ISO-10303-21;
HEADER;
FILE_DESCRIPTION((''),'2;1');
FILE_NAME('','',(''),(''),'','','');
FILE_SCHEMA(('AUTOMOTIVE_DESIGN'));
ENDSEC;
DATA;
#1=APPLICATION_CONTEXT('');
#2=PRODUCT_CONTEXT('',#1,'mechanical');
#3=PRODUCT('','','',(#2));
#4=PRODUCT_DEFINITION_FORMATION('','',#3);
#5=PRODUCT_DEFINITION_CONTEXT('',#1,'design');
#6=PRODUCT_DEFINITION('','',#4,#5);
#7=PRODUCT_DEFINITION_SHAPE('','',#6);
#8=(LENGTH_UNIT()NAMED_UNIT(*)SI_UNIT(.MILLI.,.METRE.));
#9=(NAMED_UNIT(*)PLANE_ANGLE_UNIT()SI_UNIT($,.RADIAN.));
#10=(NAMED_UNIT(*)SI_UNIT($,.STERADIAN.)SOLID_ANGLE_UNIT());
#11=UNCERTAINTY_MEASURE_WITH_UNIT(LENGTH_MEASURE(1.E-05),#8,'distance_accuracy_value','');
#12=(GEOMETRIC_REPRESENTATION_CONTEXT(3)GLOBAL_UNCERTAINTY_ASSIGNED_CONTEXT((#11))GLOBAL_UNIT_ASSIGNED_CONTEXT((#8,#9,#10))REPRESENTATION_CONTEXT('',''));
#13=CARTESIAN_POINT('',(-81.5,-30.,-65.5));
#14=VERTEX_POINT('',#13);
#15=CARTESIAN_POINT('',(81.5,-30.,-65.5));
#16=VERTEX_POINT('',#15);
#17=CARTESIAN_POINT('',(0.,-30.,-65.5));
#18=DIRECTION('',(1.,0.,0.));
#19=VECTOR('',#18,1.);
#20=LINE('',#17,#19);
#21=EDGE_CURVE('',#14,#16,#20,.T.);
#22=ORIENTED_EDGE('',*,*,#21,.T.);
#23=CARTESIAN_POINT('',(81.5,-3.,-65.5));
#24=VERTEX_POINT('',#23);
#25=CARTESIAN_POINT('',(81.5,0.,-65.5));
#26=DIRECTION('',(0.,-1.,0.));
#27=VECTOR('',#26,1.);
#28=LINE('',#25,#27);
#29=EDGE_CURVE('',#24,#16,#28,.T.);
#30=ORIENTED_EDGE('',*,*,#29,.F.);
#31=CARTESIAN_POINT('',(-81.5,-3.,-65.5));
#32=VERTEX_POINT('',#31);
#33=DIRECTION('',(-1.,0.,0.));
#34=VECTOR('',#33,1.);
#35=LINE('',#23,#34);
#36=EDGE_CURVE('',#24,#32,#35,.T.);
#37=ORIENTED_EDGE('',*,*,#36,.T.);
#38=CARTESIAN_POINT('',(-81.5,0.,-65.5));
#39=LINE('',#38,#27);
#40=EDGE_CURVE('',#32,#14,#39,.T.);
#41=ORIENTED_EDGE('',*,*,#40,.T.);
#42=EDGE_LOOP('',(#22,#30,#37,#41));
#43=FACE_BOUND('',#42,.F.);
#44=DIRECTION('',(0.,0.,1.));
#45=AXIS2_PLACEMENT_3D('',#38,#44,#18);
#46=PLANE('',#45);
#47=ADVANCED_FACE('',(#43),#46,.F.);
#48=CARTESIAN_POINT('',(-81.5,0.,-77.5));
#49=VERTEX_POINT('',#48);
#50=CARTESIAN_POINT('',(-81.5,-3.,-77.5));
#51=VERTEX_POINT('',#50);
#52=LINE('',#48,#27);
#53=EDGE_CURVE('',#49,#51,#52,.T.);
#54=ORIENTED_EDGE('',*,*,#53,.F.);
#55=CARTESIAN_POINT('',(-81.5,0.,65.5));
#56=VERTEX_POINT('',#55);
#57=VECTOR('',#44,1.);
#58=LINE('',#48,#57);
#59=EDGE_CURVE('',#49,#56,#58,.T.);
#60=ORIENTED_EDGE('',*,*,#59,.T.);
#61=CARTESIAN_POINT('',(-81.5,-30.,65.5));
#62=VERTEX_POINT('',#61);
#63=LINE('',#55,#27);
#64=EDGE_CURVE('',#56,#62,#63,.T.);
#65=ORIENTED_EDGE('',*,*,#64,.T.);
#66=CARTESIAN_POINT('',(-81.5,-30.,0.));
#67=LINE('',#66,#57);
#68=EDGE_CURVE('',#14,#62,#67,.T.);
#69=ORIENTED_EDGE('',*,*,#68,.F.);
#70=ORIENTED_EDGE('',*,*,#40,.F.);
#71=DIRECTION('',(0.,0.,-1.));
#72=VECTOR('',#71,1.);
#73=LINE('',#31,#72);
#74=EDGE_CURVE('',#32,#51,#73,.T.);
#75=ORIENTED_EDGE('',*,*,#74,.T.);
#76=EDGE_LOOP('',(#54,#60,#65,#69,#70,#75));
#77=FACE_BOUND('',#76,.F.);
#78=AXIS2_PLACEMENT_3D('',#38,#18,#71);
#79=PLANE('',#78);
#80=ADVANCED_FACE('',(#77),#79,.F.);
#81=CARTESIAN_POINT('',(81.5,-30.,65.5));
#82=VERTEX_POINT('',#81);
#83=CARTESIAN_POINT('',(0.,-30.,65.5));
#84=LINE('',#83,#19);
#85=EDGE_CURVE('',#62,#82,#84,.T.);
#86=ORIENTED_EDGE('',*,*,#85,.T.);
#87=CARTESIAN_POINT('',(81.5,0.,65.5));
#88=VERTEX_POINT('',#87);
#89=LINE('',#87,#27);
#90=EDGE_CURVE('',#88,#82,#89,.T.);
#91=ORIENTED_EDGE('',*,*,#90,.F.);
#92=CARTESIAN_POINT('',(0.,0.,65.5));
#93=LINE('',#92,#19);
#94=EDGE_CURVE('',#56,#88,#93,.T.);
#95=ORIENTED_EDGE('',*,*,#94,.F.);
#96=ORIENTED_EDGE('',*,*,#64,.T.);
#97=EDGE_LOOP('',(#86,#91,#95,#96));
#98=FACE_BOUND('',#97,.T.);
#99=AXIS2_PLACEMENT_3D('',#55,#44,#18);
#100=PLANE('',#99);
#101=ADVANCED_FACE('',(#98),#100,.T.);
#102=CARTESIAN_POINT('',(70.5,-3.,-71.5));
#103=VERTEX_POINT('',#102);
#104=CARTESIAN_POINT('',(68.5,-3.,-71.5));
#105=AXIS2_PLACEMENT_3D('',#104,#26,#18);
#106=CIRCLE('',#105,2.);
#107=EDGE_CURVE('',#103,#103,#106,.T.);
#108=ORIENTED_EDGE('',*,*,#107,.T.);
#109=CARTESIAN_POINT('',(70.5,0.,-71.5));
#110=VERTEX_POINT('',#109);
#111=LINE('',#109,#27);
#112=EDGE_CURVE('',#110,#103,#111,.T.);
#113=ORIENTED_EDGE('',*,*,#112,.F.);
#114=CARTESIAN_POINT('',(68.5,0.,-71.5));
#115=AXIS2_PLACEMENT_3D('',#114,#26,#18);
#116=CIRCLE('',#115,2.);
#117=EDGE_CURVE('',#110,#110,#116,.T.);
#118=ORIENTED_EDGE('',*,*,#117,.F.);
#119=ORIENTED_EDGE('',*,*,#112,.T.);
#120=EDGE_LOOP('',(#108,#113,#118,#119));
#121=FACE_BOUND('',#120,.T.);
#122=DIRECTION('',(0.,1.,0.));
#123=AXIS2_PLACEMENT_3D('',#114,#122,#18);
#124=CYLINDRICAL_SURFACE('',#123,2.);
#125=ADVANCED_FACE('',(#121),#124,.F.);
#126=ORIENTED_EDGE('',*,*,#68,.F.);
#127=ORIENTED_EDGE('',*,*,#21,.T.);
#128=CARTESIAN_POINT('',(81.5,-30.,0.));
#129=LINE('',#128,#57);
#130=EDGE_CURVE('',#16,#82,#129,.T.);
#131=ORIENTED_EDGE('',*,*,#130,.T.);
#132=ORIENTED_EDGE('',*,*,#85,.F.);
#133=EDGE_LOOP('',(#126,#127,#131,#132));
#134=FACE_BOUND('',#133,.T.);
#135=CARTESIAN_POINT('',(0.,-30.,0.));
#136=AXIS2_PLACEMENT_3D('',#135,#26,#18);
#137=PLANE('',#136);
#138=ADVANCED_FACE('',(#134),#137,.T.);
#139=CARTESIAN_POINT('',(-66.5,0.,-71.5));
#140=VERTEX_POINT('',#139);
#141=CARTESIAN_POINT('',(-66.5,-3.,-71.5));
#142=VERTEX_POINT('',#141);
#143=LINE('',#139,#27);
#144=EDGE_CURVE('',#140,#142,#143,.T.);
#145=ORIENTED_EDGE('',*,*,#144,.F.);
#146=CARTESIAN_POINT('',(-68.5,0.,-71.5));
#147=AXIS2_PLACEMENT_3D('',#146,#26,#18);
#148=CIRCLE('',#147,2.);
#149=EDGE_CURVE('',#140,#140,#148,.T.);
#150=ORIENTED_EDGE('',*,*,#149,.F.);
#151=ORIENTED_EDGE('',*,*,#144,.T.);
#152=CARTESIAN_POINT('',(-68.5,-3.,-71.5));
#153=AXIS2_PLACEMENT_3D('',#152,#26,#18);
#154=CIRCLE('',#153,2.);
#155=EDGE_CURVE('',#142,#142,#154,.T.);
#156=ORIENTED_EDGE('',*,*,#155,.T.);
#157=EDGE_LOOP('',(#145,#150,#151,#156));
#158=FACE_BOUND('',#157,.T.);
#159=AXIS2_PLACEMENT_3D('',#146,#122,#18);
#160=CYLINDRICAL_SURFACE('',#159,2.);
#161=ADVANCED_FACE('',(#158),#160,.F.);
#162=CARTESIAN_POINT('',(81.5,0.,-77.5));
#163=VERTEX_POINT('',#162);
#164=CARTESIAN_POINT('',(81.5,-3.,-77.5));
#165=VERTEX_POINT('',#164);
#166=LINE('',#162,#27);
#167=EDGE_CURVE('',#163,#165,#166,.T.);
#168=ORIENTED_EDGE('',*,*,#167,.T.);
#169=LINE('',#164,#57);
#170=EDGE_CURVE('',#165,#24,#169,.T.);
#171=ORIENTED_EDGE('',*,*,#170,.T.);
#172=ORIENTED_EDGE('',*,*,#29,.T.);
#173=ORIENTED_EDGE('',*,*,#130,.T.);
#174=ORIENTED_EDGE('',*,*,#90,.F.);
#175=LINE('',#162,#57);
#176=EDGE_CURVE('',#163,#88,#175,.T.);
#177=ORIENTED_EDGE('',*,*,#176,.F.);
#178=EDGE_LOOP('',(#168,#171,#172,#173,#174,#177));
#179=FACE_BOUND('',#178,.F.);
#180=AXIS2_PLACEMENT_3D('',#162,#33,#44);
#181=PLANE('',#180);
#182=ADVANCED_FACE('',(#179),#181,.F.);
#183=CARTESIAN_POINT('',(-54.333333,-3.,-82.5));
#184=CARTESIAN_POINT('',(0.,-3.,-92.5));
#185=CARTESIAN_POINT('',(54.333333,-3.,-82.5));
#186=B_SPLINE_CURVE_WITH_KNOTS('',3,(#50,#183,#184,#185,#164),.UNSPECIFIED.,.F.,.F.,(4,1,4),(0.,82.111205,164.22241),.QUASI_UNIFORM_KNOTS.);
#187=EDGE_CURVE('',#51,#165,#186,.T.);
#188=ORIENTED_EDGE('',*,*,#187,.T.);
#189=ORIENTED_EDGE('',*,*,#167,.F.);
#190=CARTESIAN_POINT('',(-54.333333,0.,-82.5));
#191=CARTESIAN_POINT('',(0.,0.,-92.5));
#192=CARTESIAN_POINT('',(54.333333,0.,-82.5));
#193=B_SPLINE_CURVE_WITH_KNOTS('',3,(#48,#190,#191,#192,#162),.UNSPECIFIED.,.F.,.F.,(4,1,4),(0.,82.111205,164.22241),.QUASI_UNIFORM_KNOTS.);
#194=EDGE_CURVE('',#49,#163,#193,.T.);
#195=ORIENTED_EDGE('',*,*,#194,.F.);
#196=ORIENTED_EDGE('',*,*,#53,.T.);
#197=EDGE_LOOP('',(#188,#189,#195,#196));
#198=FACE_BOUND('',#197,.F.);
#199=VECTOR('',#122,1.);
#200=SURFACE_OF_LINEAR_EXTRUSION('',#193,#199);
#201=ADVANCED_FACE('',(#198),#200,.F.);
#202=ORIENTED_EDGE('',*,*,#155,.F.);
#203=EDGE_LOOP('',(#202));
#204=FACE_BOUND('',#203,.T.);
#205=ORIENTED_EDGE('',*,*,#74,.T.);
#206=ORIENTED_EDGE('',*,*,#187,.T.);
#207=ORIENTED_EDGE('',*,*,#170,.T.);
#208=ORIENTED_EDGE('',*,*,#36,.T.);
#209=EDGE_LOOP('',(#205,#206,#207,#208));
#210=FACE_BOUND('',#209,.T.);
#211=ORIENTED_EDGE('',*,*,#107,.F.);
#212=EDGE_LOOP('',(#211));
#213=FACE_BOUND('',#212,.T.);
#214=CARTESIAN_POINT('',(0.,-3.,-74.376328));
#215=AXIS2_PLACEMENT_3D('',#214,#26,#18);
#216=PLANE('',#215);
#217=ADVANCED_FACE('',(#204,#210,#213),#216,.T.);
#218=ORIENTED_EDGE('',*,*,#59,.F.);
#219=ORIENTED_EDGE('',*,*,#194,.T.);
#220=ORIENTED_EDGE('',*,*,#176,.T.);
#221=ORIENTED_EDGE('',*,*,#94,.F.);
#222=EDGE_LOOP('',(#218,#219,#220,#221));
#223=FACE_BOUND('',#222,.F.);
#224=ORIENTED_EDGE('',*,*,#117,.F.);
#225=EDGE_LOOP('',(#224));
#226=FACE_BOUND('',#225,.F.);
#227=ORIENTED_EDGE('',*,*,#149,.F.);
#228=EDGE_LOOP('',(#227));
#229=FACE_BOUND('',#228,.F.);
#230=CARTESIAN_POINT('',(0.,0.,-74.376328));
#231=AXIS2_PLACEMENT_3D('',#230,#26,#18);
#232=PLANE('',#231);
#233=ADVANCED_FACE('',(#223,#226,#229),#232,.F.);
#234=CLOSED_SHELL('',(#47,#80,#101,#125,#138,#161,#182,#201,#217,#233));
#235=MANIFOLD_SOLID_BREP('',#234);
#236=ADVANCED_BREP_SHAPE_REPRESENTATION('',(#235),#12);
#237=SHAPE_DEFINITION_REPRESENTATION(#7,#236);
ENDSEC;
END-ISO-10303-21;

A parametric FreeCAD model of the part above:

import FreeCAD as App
import Part
import Sketcher

V = App.Vector
Q = App.Units.Quantity


def add_polygon(sketch, points):
    """Adds a closed chain of lines whose ends are joined by coincident constraints."""
    first, n = sketch.GeometryCount, len(points)
    for a, b in zip(points, points[1:] + points[:1]):
        sketch.addGeometry(Part.LineSegment(App.Vector(*a, 0), App.Vector(*b, 0)), False)
    for i in range(n):
        sketch.addConstraint(Sketcher.Constraint("Coincident", first + i, 2, first + (i + 1) % n, 1))

doc = App.newDocument("Part")
params = doc.addObject("Spreadsheet::Sheet", "Params")
for row, (alias, value) in enumerate([
    ("sketch1_width", "163 mm"),
    ("sketch1_height", "131 mm"),
    ("pad1_length", "30 mm"),
    ("sketch2_diameter", "4 mm"),
    ("sketch2_height", "12 mm"),
    ("pad2_length", "3 mm"),
], start=1):
    params.set(f"A{row}", alias)
    params.set(f"B{row}", "=" + value)
    params.setAlias(f"B{row}", alias)

body = doc.addObject("PartDesign::Body", "Body")

sketch1 = doc.addObject("Sketcher::SketchObject", "Sketch")
body.addObject(sketch1)
sketch1.AttachmentSupport = (doc.XZ_Plane, [""])
sketch1.MapMode = "FlatFace"
add_polygon(sketch1, [(-82, 66), (-82, -66), (82, -66), (82, 66)])
sketch1.addConstraint([
    Sketcher.Constraint("Vertical", 0),
    Sketcher.Constraint("Horizontal", 1),
    Sketcher.Constraint("Vertical", 2),
    Sketcher.Constraint("Horizontal", 3),
    Sketcher.Constraint("Symmetric", 0, 2, 2, 2, -1, 1),
    Sketcher.Constraint("DistanceX", 1, 1, 1, 2, Q("163 mm")),
    Sketcher.Constraint("DistanceY", 0, 2, 0, 1, Q("131 mm")),
])
sketch1.setExpression("Constraints[9]", "Params.sketch1_width")
sketch1.setExpression("Constraints[10]", "Params.sketch1_height")
pad1 = doc.addObject("PartDesign::Pad", "Pad")
body.addObject(pad1)
pad1.Profile = sketch1
pad1.setExpression("Length", "Params.pad1_length")

sketch2 = doc.addObject("Sketcher::SketchObject", "Sketch001")
body.addObject(sketch2)
sketch2.AttachmentSupport = (doc.XZ_Plane, [""])
sketch2.MapMode = "FlatFace"
sketch2.addGeometry([
    Part.LineSegment(V(81.5, -77.5, 0), V(81.5, -65.5, 0)),
    Part.LineSegment(V(81.5, -65.5, 0), V(-81.5, -65.5, 0)),
    Part.LineSegment(V(-81.5, -65.5, 0), V(-81.5, -77.5, 0)),
    Part.BSplineCurve([V(-81.5, -77.5, 0), V(-54.333333, -82.5, 0), V(0, -92.5, 0), V(54.333333, -82.5, 0), V(81.5, -77.5, 0)], [4, 1, 4], [0, 82.111205, 164.22241], False, 3, [1, 1, 1, 1, 1], False),
    Part.Circle(V(-68.5, -71.5, 0), V(0, 0, 1), 2),
    Part.Circle(V(68.5, -71.5, 0), V(0, 0, 1), 2),
], False)
sketch2.addConstraint([
    Sketcher.Constraint("Block", 3),
    Sketcher.Constraint("Coincident", 0, 2, 1, 1),
    Sketcher.Constraint("Coincident", 1, 2, 2, 1),
    Sketcher.Constraint("Coincident", 2, 2, 3, 1),
    Sketcher.Constraint("Coincident", 3, 2, 0, 1),
    Sketcher.Constraint("Vertical", 0),
    Sketcher.Constraint("Horizontal", 1),
    Sketcher.Constraint("Vertical", 2),
    Sketcher.Constraint("Equal", 4, 5),
    Sketcher.Constraint("Symmetric", 4, 3, 5, 3, -2),
    Sketcher.Constraint("Diameter", 4, Q("4 mm")),
    Sketcher.Constraint("DistanceY", 0, 1, 0, 2, Q("12 mm")),
    Sketcher.Constraint("DistanceX", 4, 3, 5, 3, Q("137 mm")),
    Sketcher.Constraint("DistanceY", 5, 3, 0, 2, Q("6 mm")),
])
sketch2.setExpression("Constraints[10]", "Params.sketch2_diameter")
sketch2.setExpression("Constraints[11]", "Params.sketch2_height")
pad2 = doc.addObject("PartDesign::Pad", "Pad001")
body.addObject(pad2)
pad2.Profile = sketch2
pad2.setExpression("Length", "Params.pad2_length")

doc.recompute()
